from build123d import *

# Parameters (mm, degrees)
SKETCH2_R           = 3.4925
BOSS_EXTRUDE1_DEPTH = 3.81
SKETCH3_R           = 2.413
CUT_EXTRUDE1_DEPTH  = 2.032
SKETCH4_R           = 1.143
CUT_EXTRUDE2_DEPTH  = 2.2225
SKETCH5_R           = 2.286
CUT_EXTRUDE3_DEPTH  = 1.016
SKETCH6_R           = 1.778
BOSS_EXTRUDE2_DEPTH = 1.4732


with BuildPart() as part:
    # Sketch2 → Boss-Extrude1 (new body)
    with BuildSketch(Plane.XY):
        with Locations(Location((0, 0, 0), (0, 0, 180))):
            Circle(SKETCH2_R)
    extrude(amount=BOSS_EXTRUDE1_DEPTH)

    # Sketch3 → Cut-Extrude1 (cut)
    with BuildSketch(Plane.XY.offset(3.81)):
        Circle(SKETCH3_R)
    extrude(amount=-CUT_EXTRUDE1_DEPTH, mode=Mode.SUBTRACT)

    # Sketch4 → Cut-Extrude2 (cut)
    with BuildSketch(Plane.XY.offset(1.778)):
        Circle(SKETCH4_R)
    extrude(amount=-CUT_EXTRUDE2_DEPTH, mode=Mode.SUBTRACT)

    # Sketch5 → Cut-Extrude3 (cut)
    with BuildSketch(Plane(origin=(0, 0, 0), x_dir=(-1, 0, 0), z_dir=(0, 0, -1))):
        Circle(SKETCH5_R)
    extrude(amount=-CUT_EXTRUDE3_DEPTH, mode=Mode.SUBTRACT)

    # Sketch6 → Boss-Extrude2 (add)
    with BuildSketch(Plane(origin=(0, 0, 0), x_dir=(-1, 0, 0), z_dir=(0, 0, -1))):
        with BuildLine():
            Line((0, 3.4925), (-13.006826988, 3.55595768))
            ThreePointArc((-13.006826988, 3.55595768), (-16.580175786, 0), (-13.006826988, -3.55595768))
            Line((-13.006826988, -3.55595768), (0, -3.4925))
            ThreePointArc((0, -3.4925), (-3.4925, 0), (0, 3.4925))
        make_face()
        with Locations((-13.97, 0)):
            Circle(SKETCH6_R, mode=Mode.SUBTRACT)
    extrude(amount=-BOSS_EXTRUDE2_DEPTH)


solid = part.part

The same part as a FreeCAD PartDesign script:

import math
import FreeCAD as App
import Part
import Sketcher
from FreeCAD import Vector
Q = App.Units.Quantity

doc = App.newDocument("Part")
body = doc.addObject("PartDesign::Body", "Body")

# Sketch on XY plane
sketch1 = body.newObject("Sketcher::SketchObject", "Sketch")
sketch1.AttachmentSupport = (doc.getObject("XY_Plane"), [""])
sketch1.MapMode = "FlatFace"
sketch1.addGeometry(Part.Circle(Vector(0, 0, 0), Vector(0, 0, 1), 3.5), False)
sketch1.addConstraint([
    Sketcher.Constraint("Coincident", 0, 3, -1, 1),
    Sketcher.Constraint("Diameter", 0, Q("0.275 in")),
])
pad1 = body.newObject("PartDesign::Pad", "Pad")
pad1.Profile = sketch1
pad1.Length = Q("0.15 in")

# Sketch on XY plane
sketch2 = body.newObject("Sketcher::SketchObject", "Sketch001")
sketch2.AttachmentSupport = (doc.getObject("XY_Plane"), [""])
sketch2.MapMode = "FlatFace"
sketch2.AttachmentOffset = App.Placement(Vector(0, 0, 0.15 * 25.4), App.Rotation())
sketch2.addGeometry(Part.Circle(Vector(0, 0, 0), Vector(0, 0, 1), 2.4), False)
sketch2.addConstraint([
    Sketcher.Constraint("Coincident", 0, 3, -1, 1),
    Sketcher.Constraint("Diameter", 0, Q("0.19 in")),
])
pocket1 = body.newObject("PartDesign::Pocket", "Pocket")
pocket1.Profile = sketch2
pocket1.Length = Q("0.08 in")

# Sketch on XY plane
sketch3 = body.newObject("Sketcher::SketchObject", "Sketch002")
sketch3.AttachmentSupport = (doc.getObject("XY_Plane"), [""])
sketch3.MapMode = "FlatFace"
sketch3.AttachmentOffset = App.Placement(Vector(0, 0, 0.07 * 25.4), App.Rotation())
sketch3.addGeometry(Part.Circle(Vector(0, 0, 0), Vector(0, 0, 1), 1.1), False)
sketch3.addConstraint([
    Sketcher.Constraint("Coincident", 0, 3, -1, 1),
    Sketcher.Constraint("Diameter", 0, Q("0.09 in")),
])
pocket2 = body.newObject("PartDesign::Pocket", "Pocket001")
pocket2.Profile = sketch3
pocket2.Length = Q("0.0875 in")

# Sketch on XY plane
sketch4 = body.newObject("Sketcher::SketchObject", "Sketch003")
sketch4.AttachmentSupport = (doc.getObject("XY_Plane"), [""])
sketch4.MapMode = "FlatFace"
sketch4.addGeometry(Part.Circle(Vector(0, 0, 0), Vector(0, 0, 1), 2.3), False)
sketch4.addConstraint([
    Sketcher.Constraint("Coincident", 0, 3, -1, 1),
    Sketcher.Constraint("Diameter", 0, Q("0.18 in")),
])
pocket3 = body.newObject("PartDesign::Pocket", "Pocket002")
pocket3.Profile = sketch4
pocket3.Length = Q("0.04 in")
pocket3.Reversed = True

# Sketch on XY plane
sketch5 = body.newObject("Sketcher::SketchObject", "Sketch004")
sketch5.AttachmentSupport = (doc.getObject("XY_Plane"), [""])
sketch5.MapMode = "FlatFace"
sketch5.addGeometry([
    Part.LineSegment(Vector(0, 3.5, 0), Vector(13, 3.6, 0)),  # 0
    Part.ArcOfCircle(Part.Circle(Vector(13, 0, 0), Vector(0, 0, 1), 3.6), math.radians(-90), math.radians(90)),  # 1
    Part.LineSegment(Vector(13, -3.6, 0), Vector(0, -3.5, 0)),  # 2
    Part.ArcOfCircle(Part.Circle(Vector(0, 0, 0), Vector(0, 0, 1), 3.5), math.radians(-90), math.radians(90)),  # 3
    Part.Circle(Vector(14, 0, 0), Vector(0, 0, 1), 1.8),  # 4
], False)
sketch5.addConstraint([
    Sketcher.Constraint("Tangent", 0, 2, 1, 2),
    Sketcher.Constraint("Tangent", 1, 1, 2, 1),
    Sketcher.Constraint("Coincident", 2, 2, 3, 1),
    Sketcher.Constraint("Coincident", 3, 2, 0, 1),
    Sketcher.Constraint("Coincident", 3, 3, -1, 1),
    Sketcher.Constraint("Symmetric", 0, 2, 1, 1, -1),
    Sketcher.Constraint("PointOnObject", 4, 3, -1),
    Sketcher.Constraint("PointOnObject", 2, 2, -2),
    Sketcher.Constraint("Diameter", 4, Q("0.14 in")),
    Sketcher.Constraint("Radius", 1, Q("0.14 in")),
    Sketcher.Constraint("Radius", 3, Q("0.1375 in")),
    Sketcher.Constraint("DistanceX", -1, 1, 4, 3, Q("0.55 in")),
    Sketcher.Constraint("Distance", 0, 13.006982),
])
pad2 = body.newObject("PartDesign::Pad", "Pad001")
pad2.Profile = sketch5
pad2.Length = Q("0.058 in")

doc.recompute()
